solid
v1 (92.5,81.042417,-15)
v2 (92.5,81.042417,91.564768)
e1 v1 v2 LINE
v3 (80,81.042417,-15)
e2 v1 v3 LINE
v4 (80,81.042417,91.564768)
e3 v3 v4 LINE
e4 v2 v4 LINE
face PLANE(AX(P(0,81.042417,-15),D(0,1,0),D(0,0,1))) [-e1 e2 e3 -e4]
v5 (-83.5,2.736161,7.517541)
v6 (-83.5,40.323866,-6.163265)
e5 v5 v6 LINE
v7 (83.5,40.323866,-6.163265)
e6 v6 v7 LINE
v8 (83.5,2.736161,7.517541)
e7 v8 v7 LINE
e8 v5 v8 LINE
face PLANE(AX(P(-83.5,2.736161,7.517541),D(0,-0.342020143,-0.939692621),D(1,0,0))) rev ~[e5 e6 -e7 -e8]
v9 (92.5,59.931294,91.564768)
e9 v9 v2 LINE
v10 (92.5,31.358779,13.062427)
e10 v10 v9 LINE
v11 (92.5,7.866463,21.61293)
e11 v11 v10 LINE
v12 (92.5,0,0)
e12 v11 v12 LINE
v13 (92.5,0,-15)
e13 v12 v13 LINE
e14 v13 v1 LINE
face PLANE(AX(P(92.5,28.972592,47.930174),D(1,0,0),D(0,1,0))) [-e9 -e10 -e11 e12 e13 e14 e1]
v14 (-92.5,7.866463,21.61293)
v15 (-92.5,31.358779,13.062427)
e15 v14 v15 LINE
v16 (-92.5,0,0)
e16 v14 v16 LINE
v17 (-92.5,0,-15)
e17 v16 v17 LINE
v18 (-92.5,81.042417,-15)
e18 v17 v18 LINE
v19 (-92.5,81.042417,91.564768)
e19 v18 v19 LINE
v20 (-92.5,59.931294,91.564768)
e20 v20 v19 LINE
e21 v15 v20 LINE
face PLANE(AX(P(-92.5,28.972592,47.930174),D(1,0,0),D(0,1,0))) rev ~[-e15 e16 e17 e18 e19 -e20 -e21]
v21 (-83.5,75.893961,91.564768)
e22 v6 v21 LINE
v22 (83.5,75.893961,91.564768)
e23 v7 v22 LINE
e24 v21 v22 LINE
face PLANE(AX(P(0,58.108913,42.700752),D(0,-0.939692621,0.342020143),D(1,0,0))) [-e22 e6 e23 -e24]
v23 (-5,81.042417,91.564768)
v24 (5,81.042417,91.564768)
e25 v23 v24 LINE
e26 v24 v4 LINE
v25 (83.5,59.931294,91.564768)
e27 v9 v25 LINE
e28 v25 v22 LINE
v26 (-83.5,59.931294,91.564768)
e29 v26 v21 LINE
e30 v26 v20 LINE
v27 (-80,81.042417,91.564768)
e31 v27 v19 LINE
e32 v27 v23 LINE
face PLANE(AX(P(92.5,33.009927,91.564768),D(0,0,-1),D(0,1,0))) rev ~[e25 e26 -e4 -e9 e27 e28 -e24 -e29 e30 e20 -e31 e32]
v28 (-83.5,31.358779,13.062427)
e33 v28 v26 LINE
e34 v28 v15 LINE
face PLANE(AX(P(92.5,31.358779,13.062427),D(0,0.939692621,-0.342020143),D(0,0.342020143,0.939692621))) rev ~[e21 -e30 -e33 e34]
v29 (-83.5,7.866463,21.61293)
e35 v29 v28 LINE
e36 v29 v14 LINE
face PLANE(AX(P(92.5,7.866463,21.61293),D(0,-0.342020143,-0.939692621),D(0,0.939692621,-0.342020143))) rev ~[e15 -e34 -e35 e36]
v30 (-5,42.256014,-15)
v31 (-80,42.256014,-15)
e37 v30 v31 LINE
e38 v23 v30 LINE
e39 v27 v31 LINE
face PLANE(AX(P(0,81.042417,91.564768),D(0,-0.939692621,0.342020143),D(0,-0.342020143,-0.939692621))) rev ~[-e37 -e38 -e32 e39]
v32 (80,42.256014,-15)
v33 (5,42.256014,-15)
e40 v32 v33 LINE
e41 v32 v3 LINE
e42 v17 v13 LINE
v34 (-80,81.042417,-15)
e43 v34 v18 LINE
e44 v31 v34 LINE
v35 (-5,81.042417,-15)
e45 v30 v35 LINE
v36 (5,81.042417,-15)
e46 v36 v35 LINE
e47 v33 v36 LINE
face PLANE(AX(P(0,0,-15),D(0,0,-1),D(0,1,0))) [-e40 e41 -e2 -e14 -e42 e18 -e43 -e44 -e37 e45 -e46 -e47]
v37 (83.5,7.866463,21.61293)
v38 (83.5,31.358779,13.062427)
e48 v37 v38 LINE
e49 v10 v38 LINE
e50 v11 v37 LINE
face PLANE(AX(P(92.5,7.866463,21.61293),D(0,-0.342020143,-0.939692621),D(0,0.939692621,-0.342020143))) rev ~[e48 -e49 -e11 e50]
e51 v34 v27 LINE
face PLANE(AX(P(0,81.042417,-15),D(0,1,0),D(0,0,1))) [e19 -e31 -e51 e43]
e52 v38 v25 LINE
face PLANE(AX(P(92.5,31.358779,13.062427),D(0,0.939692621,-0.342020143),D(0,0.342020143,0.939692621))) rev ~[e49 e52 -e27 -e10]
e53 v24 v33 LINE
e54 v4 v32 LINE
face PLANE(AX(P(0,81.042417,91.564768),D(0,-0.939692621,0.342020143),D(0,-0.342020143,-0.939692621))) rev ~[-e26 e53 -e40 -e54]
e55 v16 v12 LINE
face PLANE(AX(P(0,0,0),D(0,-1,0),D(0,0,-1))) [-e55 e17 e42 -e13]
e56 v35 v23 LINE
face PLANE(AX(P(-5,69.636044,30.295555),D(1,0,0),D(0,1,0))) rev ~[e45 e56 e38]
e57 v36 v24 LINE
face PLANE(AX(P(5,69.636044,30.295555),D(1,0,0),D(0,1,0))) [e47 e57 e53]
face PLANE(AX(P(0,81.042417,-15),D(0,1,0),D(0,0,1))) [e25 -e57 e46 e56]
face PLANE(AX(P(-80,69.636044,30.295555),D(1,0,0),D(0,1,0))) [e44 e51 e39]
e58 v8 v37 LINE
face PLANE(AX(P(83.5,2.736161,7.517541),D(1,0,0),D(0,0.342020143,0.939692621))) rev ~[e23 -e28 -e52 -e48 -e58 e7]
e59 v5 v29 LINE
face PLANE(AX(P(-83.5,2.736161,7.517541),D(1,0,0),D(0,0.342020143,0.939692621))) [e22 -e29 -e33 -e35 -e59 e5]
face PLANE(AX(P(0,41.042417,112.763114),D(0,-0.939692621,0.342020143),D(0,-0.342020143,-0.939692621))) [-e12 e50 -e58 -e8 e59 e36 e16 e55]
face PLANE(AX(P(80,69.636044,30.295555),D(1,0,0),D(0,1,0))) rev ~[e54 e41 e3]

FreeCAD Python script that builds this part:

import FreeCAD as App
import Part
import Sketcher
Q = App.Units.Quantity


def add_polygon(sketch, points):
    """Adds a closed chain of lines whose ends are joined by coincident constraints."""
    first, n = sketch.GeometryCount, len(points)
    for a, b in zip(points, points[1:] + points[:1]):
        sketch.addGeometry(Part.LineSegment(App.Vector(*a, 0), App.Vector(*b, 0)), False)
    for i in range(n):
        sketch.addConstraint(Sketcher.Constraint("Coincident", first + i, 2, first + (i + 1) % n, 1))

doc = App.newDocument("Part")
params = doc.addObject("Spreadsheet::Sheet", "Params")
for row, (alias, value) in enumerate([
    ("sketch1_width", "40 mm"),
    ("sketch1_height", "15 mm"),
    ("sketch1_length", "120 mm"),
    ("pad1_length", "185 mm"),
    ("sketch2_width", "167 mm"),
    ("sketch2_height", "104 mm"),
    ("pocket1_length", "40 mm"),
    ("sketch3_width", "67.14 mm"),
    ("pocket2_length", "200 mm"),
    ("sketch4_length", "25 mm"),
    ("pocket3_length", "200 mm"),
    ("pocket4_length", "160 mm"),
    ("pad2_length", "10 mm"),
], start=1):
    params.set(f"A{row}", alias)
    params.set(f"B{row}", "=" + value)
    params.setAlias(f"B{row}", alias)

body = doc.addObject("PartDesign::Body", "Body")

# Sketch on YZ plane
sketch1 = doc.addObject("Sketcher::SketchObject", "Sketch")
body.addObject(sketch1)
sketch1.AttachmentSupport = (doc.YZ_Plane, [""])
sketch1.MapMode = "FlatFace"
add_polygon(sketch1, [(41, 113), (0, 0), (0, -15), (81, -15), (81, 113)])  # lines 0-4
sketch1.addConstraint([
    Sketcher.Constraint("Vertical", 1),
    Sketcher.Constraint("Horizontal", 2),
    Sketcher.Constraint("Vertical", 3),
    Sketcher.Constraint("Horizontal", 4),
    Sketcher.Constraint("Coincident", 0, 2, -1, 1),
    Sketcher.Constraint("DistanceX", 4, 2, 4, 1, Q("40 mm")),
    Sketcher.Constraint("DistanceY", 1, 2, 1, 1, Q("15 mm")),
    Sketcher.Constraint("Angle", 0, Q("-110 deg")),
    Sketcher.Constraint("Distance", 0, Q("120 mm")),
])
sketch1.setExpression("Constraints[10]", "Params.sketch1_width")
sketch1.setExpression("Constraints[11]", "Params.sketch1_height")
sketch1.setExpression("Constraints[13]", "Params.sketch1_length")
pad1 = doc.addObject("PartDesign::Pad", "Pad")
body.addObject(pad1)
pad1.Profile = sketch1
pad1.setExpression("Length", "Params.pad1_length")
pad1.Midplane = True

# Sketch on an angled plane
sketch2 = doc.addObject("Sketcher::SketchObject", "Sketch001")
body.addObject(sketch2)
sketch2.Placement = App.Placement(App.Vector(0, 0, 0), App.Rotation(App.Vector(1, 0, 0), App.Vector(0, 0.342020143, 0.939692621), App.Vector(0, -0.939692621, 0.342020143), "ZXY"))
add_polygon(sketch2, [(-84, 112), (-84, 8), (84, 8), (84, 112)])  # lines 0-3
sketch2.addConstraint([
    Sketcher.Constraint("Vertical", 0),
    Sketcher.Constraint("Horizontal", 1),
    Sketcher.Constraint("Vertical", 2),
    Sketcher.Constraint("Horizontal", 3),
    Sketcher.Constraint("DistanceX", 1, 1, 1, 2, Q("167 mm")),
    Sketcher.Constraint("DistanceY", 0, 2, 0, 1, Q("104 mm")),
    Sketcher.Constraint("DistanceY", -1, 1, 0, 2, Q("8 mm")),
    Sketcher.Constraint("DistanceX", 0, 2, -1, 1, Q("83.5 mm")),
])
sketch2.setExpression("Constraints[8]", "Params.sketch2_width")
sketch2.setExpression("Constraints[9]", "Params.sketch2_height")
pocket1 = doc.addObject("PartDesign::Pocket", "Pocket")
body.addObject(pocket1)
pocket1.Profile = sketch2
pocket1.setExpression("Length", "Params.pocket1_length")

# Sketch on YZ plane
sketch3 = doc.addObject("Sketcher::SketchObject", "Sketch002")
body.addObject(sketch3)
sketch3.AttachmentSupport = (doc.YZ_Plane, [""])
sketch3.MapMode = "FlatFace"
sketch3.AttachmentOffset = App.Placement(App.Vector(0, 0, 92.5), App.Rotation())
add_polygon(sketch3, [(100, 92), (100, 113), (33, 113), (33, 92)])  # lines 0-3
sketch3.addConstraint([
    Sketcher.Constraint("Vertical", 0),
    Sketcher.Constraint("Horizontal", 1),
    Sketcher.Constraint("Vertical", 2),
    Sketcher.Constraint("Horizontal", 3),
    Sketcher.Constraint("DistanceX", 1, 2, 1, 1, Q("67.14 mm")),
    Sketcher.Constraint("DistanceY", 0, 1, 0, 2, Q("21.198347 mm")),
    Sketcher.Constraint("DistanceX", -1, 1, 0, 2, Q("100.149927 mm")),
    Sketcher.Constraint("DistanceY", -1, 1, 0, 2, Q("112.763114 mm")),
])
sketch3.setExpression("Constraints[8]", "Params.sketch3_width")
pocket2 = doc.addObject("PartDesign::Pocket", "Pocket001")
body.addObject(pocket2)
pocket2.Profile = sketch3
pocket2.setExpression("Length", "Params.pocket2_length")

# Sketch on YZ plane
sketch4 = doc.addObject("Sketcher::SketchObject", "Sketch003")
body.addObject(sketch4)
sketch4.AttachmentSupport = (doc.YZ_Plane, [""])
sketch4.MapMode = "FlatFace"
sketch4.AttachmentOffset = App.Placement(App.Vector(0, 0, 92.5), App.Rotation())
add_polygon(sketch4, [(33, 92), (8, 22), (31, 13), (60, 92)])  # lines 0-3
sketch4.addConstraint([
    Sketcher.Constraint("Horizontal", 3),
    Sketcher.Constraint("Perpendicular", 0, 1),
    Sketcher.Constraint("Perpendicular", 1, 2),
    Sketcher.Constraint("Angle", 0, Q("-110 deg")),
    Sketcher.Constraint("Distance", 1, Q("25 mm")),
    Sketcher.Constraint("Distance", 0, Q("74.441191 mm")),
    Sketcher.Constraint("DistanceY", -1, 1, 0, 2, Q("21.61293 mm")),
    Sketcher.Constraint("DistanceX", -1, 1, 1, 2, Q("31.358779 mm")),
])
sketch4.setExpression("Constraints[8]", "Params.sketch4_length")
pocket3 = doc.addObject("PartDesign::Pocket", "Pocket002")
body.addObject(pocket3)
pocket3.Profile = sketch4
pocket3.setExpression("Length", "Params.pocket3_length")

# Sketch on YZ plane
sketch5 = doc.addObject("Sketcher::SketchObject", "Sketch004")
body.addObject(sketch5)
sketch5.AttachmentSupport = (doc.YZ_Plane, [""])
sketch5.MapMode = "FlatFace"
add_polygon(sketch5, [(81, -15), (81, 92), (42, -15)])  # lines 0-2
sketch5.addConstraint([
    Sketcher.Constraint("Vertical", 0),
    Sketcher.Constraint("Horizontal", 2),
    Sketcher.Constraint("Angle", 1, Q("-110 deg")),
    Sketcher.Constraint("DistanceY", 1, 2, -1, 1, Q("15 mm")),
    Sketcher.Constraint("DistanceX", 2, 1, 2, 2, Q("38.786403 mm")),
    Sketcher.Constraint("DistanceX", -1, 1, 0, 2, Q("81.042417 mm")),
])
pocket4 = doc.addObject("PartDesign::Pocket", "Pocket003")
body.addObject(pocket4)
pocket4.Profile = sketch5
pocket4.setExpression("Length", "Params.pocket4_length")
pocket4.Midplane = True

# Sketch on YZ plane
sketch6 = doc.addObject("Sketcher::SketchObject", "Sketch005")
body.addObject(sketch6)
sketch6.AttachmentSupport = (doc.YZ_Plane, [""])
sketch6.MapMode = "FlatFace"
add_polygon(sketch6, [(81, -15), (81, 92), (42, -15)])  # lines 0-2
sketch6.addConstraint([
    Sketcher.Constraint("Vertical", 0),
    Sketcher.Constraint("Horizontal", 2),
    Sketcher.Constraint("Angle", 1, Q("-110 deg")),
    Sketcher.Constraint("DistanceY", 1, 2, -1, 1, Q("15 mm")),
    Sketcher.Constraint("DistanceX", 2, 1, 2, 2, Q("38.786403 mm")),
    Sketcher.Constraint("DistanceX", -1, 1, 0, 2, Q("81.042417 mm")),
])
pad2 = doc.addObject("PartDesign::Pad", "Pad001")
body.addObject(pad2)
pad2.Profile = sketch6
pad2.setExpression("Length", "Params.pad2_length")
pad2.Midplane = True

doc.recompute()
